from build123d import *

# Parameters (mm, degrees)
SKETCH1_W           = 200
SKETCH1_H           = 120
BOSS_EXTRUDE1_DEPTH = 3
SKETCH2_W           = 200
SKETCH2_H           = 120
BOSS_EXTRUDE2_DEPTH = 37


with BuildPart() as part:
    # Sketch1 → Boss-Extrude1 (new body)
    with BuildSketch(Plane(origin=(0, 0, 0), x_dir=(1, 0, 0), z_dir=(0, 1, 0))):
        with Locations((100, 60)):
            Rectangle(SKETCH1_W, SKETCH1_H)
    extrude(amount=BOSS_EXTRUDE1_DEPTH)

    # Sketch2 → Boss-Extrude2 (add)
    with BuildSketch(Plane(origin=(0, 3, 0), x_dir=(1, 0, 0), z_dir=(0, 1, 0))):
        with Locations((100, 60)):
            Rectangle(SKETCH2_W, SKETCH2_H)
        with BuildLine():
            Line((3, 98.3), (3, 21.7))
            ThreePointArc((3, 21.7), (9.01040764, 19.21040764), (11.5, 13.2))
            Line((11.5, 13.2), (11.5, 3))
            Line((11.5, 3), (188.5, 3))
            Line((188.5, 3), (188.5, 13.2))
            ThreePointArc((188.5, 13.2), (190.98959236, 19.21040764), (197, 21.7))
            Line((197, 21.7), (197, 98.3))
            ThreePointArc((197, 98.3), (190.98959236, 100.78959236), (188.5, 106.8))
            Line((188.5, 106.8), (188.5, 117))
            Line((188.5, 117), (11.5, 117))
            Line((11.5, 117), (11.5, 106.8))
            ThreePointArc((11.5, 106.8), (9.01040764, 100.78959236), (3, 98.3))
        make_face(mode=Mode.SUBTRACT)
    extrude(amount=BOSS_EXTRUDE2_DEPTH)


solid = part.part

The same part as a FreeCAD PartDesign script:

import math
import FreeCAD as App
import Part
import Sketcher

V = App.Vector


def add_polygon(sketch, points):
    """Adds a closed chain of lines whose ends are joined by coincident constraints."""
    first, n = sketch.GeometryCount, len(points)
    for a, b in zip(points, points[1:] + points[:1]):
        sketch.addGeometry(Part.LineSegment(App.Vector(*a, 0), App.Vector(*b, 0)), False)
    for i in range(n):
        sketch.addConstraint(Sketcher.Constraint("Coincident", first + i, 2, first + (i + 1) % n, 1))

doc = App.newDocument("Part")
params = doc.addObject("Spreadsheet::Sheet", "Params")
for row, (alias, value) in enumerate([
    ("sketch1_width", "200 mm"),
    ("sketch1_height", "120 mm"),
    ("pad1_length", "3 mm"),
    ("sketch2_radius", "8.5 mm"),
    ("sketch2_width", "200 mm"),
    ("sketch2_width2", "177 mm"),
    ("sketch2_height", "120 mm"),
    ("sketch2_height2", "76.6 mm"),
    ("pad2_length", "37 mm"),
], start=1):
    params.set(f"A{row}", alias)
    params.set(f"B{row}", "=" + value)
    params.setAlias(f"B{row}", alias)

body = doc.addObject("PartDesign::Body", "Body")

# Sketch on XZ plane
sketch1 = doc.addObject("Sketcher::SketchObject", "Sketch")
body.addObject(sketch1)
sketch1.AttachmentSupport = (doc.XZ_Plane, [""])
sketch1.MapMode = "FlatFace"
add_polygon(sketch1, [(0, -120), (0, 0), (200, 0), (200, -120)])  # lines 0-3
sketch1.addConstraint([
    Sketcher.Constraint("Vertical", 0),
    Sketcher.Constraint("Horizontal", 1),
    Sketcher.Constraint("Vertical", 2),
    Sketcher.Constraint("Horizontal", 3),
    Sketcher.Constraint("Coincident", 0, 2, -1, 1),
    Sketcher.Constraint("DistanceX", 1, 1, 1, 2, 200.0),
    Sketcher.Constraint("DistanceY", 0, 1, 0, 2, 120.0),
])
sketch1.setExpression("Constraints[9]", "Params.sketch1_width")
sketch1.setExpression("Constraints[10]", "Params.sketch1_height")
pad1 = doc.addObject("PartDesign::Pad", "Pad")
body.addObject(pad1)
pad1.Profile = sketch1
pad1.setExpression("Length", "Params.pad1_length")
pad1.Reversed = True

# Sketch on XZ plane
sketch2 = doc.addObject("Sketcher::SketchObject", "Sketch001")
body.addObject(sketch2)
sketch2.AttachmentSupport = (doc.XZ_Plane, [""])
sketch2.MapMode = "FlatFace"
sketch2.AttachmentOffset = App.Placement(V(0, 0, -3), App.Rotation())
add_polygon(sketch2, [(0, -120), (0, 0), (200, 0), (200, -120)])  # lines 0-3
sketch2.addGeometry(Part.LineSegment(V(3, -21.7, 0), V(3, -98.3, 0)), False)  # 4
sketch2.addGeometry(Part.ArcOfCircle(Part.Circle(V(3, -106.8, 0), V(0, 0, 1), 8.5), math.radians(0), math.radians(90)), False)  # 5
sketch2.addGeometry(Part.LineSegment(V(11.5, -106.8, 0), V(11.5, -117, 0)), False)  # 6
sketch2.addGeometry(Part.LineSegment(V(11.5, -117, 0), V(188.5, -117, 0)), False)  # 7
sketch2.addGeometry(Part.LineSegment(V(188.5, -117, 0), V(188.5, -106.8, 0)), False)  # 8
sketch2.addGeometry(Part.ArcOfCircle(Part.Circle(V(197, -106.8, 0), V(0, 0, 1), 8.5), math.radians(90), math.radians(180)), False)  # 9
sketch2.addGeometry(Part.LineSegment(V(197, -98.3, 0), V(197, -21.7, 0)), False)  # 10
sketch2.addGeometry(Part.ArcOfCircle(Part.Circle(V(197, -13.2, 0), V(0, 0, 1), 8.5), math.radians(180), math.radians(270)), False)  # 11
sketch2.addGeometry(Part.LineSegment(V(188.5, -13.2, 0), V(188.5, -3, 0)), False)  # 12
sketch2.addGeometry(Part.LineSegment(V(188.5, -3, 0), V(11.5, -3, 0)), False)  # 13
sketch2.addGeometry(Part.LineSegment(V(11.5, -3, 0), V(11.5, -13.2, 0)), False)  # 14
sketch2.addGeometry(Part.ArcOfCircle(Part.Circle(V(3, -13.2, 0), V(0, 0, 1), 8.5), math.radians(-90), math.radians(0)), False)  # 15
sketch2.addConstraint([
    Sketcher.Constraint("Coincident", 4, 2, 5, 2),
    Sketcher.Constraint("Tangent", 5, 1, 6, 1),
    Sketcher.Constraint("Coincident", 6, 2, 7, 1),
    Sketcher.Constraint("Coincident", 7, 2, 8, 1),
    Sketcher.Constraint("Tangent", 8, 2, 9, 2),
    Sketcher.Constraint("Coincident", 9, 1, 10, 1),
    Sketcher.Constraint("Coincident", 10, 2, 11, 2),
    Sketcher.Constraint("Tangent", 11, 1, 12, 1),
    Sketcher.Constraint("Coincident", 12, 2, 13, 1),
    Sketcher.Constraint("Coincident", 13, 2, 14, 1),
    Sketcher.Constraint("Tangent", 14, 2, 15, 2),
    Sketcher.Constraint("Coincident", 15, 1, 4, 1),
    Sketcher.Constraint("Vertical", 0),
    Sketcher.Constraint("Horizontal", 1),
    Sketcher.Constraint("Vertical", 2),
    Sketcher.Constraint("Horizontal", 3),
    Sketcher.Constraint("Vertical", 4),
    Sketcher.Constraint("Vertical", 6),
    Sketcher.Constraint("Horizontal", 7),
    Sketcher.Constraint("Vertical", 8),
    Sketcher.Constraint("Vertical", 10),
    Sketcher.Constraint("Vertical", 12),
    Sketcher.Constraint("Horizontal", 13),
    Sketcher.Constraint("Vertical", 14),
    Sketcher.Constraint("Coincident", 0, 2, -1, 1),
    Sketcher.Constraint("Equal", 5, 9),
    Sketcher.Constraint("Equal", 9, 11),
    Sketcher.Constraint("Equal", 11, 15),
    Sketcher.Constraint("Horizontal", 5, 3, 9, 3),
    Sketcher.Constraint("Horizontal", 11, 3, 15, 3),
    Sketcher.Constraint("Vertical", 9, 3, 11, 3),
    Sketcher.Constraint("Vertical", 5, 3, 15, 3),
    Sketcher.Constraint("Vertical", 15, 3, 4, 2),
    Sketcher.Constraint("Vertical", 11, 3, 9, 1),
    Sketcher.Constraint("Equal", 8, 12),
    Sketcher.Constraint("Radius", 5, 8.5),
    Sketcher.Constraint("DistanceX", 1, 1, 1, 2, 200.0),
    Sketcher.Constraint("DistanceX", 7, 1, 7, 2, 177.0),
    Sketcher.Constraint("DistanceY", 0, 1, 0, 2, 120.0),
    Sketcher.Constraint("DistanceY", 4, 2, 4, 1, 76.6),
    Sketcher.Constraint("DistanceY", 6, 2, 6, 1, 10.2),
    Sketcher.Constraint("DistanceX", -1, 1, 5, 3, 3.0),
    Sketcher.Constraint("DistanceY", 6, 2, -1, 1, 117.0),
])
sketch2.setExpression("Constraints[39]", "Params.sketch2_radius")
sketch2.setExpression("Constraints[40]", "Params.sketch2_width")
sketch2.setExpression("Constraints[41]", "Params.sketch2_width2")
sketch2.setExpression("Constraints[42]", "Params.sketch2_height")
sketch2.setExpression("Constraints[43]", "Params.sketch2_height2")
pad2 = doc.addObject("PartDesign::Pad", "Pad001")
body.addObject(pad2)
pad2.Profile = sketch2
pad2.setExpression("Length", "Params.pad2_length")
pad2.Reversed = True

doc.recompute()
